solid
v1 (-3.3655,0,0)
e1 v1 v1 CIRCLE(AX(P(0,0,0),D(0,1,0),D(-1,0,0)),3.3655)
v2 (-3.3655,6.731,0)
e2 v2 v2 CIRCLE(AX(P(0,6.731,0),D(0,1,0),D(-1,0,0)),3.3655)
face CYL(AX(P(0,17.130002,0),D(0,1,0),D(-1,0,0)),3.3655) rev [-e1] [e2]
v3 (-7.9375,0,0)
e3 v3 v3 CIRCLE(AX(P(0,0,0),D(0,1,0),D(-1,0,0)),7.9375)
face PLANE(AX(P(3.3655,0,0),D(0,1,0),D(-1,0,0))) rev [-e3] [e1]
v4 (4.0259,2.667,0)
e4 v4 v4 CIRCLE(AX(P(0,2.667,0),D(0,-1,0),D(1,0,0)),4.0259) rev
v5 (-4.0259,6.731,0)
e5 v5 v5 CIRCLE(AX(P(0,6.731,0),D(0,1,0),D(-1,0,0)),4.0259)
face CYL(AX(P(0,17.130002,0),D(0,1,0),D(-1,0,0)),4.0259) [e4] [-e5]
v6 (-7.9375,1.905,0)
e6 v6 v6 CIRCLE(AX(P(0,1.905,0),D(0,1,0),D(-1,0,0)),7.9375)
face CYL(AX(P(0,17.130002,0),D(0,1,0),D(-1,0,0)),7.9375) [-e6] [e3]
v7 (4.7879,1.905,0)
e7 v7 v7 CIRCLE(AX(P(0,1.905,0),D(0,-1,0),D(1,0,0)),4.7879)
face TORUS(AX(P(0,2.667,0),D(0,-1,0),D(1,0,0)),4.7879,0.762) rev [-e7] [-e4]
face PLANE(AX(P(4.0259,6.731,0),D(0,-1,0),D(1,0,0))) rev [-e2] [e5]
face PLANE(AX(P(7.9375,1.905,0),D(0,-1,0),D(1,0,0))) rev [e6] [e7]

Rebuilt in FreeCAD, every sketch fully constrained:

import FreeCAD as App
import Part
import Sketcher
from FreeCAD import Vector
Q = App.Units.Quantity


def edges_at(feature, points):
    """Names of the edges that pass closest to the given points."""
    edges = feature.Shape.Edges
    near = lambda p: min(range(len(edges)), key=lambda i: edges[i].distToShape(Part.Vertex(*p))[0])
    return sorted({f"Edge{near(p) + 1}" for p in points})


def add_polygon(sketch, points):
    """Adds a closed chain of lines whose ends are joined by coincident constraints."""
    first, n = sketch.GeometryCount, len(points)
    for a, b in zip(points, points[1:] + points[:1]):
        sketch.addGeometry(Part.LineSegment(App.Vector(*a, 0), App.Vector(*b, 0)), False)
    for i in range(n):
        sketch.addConstraint(Sketcher.Constraint("Coincident", first + i, 2, first + (i + 1) % n, 1))

doc = App.newDocument("Part")
body = doc.addObject("PartDesign::Body", "Body")

# Sketch on XY plane
sketch1 = body.newObject("Sketcher::SketchObject", "Sketch")
sketch1.AttachmentSupport = (doc.getObject("XY_Plane"), [""])
sketch1.MapMode = "FlatFace"
add_polygon(sketch1, [(3.3655, 0), (7.9375, 0), (7.9375, 1.905), (4.0259, 1.905), (4.0259, 6.731), (3.3655, 6.731)])  # lines 0-5
sketch1.addConstraint(Sketcher.Constraint("Horizontal", 0))
sketch1.addConstraint(Sketcher.Constraint("Vertical", 1))
sketch1.addConstraint(Sketcher.Constraint("Horizontal", 2))
sketch1.addConstraint(Sketcher.Constraint("Vertical", 3))
sketch1.addConstraint(Sketcher.Constraint("Horizontal", 4))
sketch1.addConstraint(Sketcher.Constraint("Vertical", 5))
sketch1.addConstraint(Sketcher.Constraint("PointOnObject", 0, 2, -1))
sketch1.addConstraint(Sketcher.Constraint("DistanceX", 0, 1, 0, 2, Q("0.18 in")))
sketch1.addConstraint(Sketcher.Constraint("DistanceY", 3, 1, 3, 2, Q("0.19 in")))
sketch1.addConstraint(Sketcher.Constraint("DistanceX", 2, 2, 2, 1, Q("0.154 in")))
sketch1.addConstraint(Sketcher.Constraint("DistanceY", 1, 1, 1, 2, Q("0.075 in")))
sketch1.addConstraint(Sketcher.Constraint("DistanceX", -1, 1, 0, 2, Q("0.3125 in")))
revolution = body.newObject("PartDesign::Revolution", "Revolution")
revolution.Profile = sketch1
revolution.ReferenceAxis = (sketch1, ["V_Axis"])
revolution.Angle = 360
doc.recompute()

fillet = body.newObject("PartDesign::Fillet", "Fillet")
fillet.Base = (revolution, edges_at(revolution, [(4.026, 1.905, 0)]))
fillet.Radius = Q("0.03 in")

doc.recompute()
